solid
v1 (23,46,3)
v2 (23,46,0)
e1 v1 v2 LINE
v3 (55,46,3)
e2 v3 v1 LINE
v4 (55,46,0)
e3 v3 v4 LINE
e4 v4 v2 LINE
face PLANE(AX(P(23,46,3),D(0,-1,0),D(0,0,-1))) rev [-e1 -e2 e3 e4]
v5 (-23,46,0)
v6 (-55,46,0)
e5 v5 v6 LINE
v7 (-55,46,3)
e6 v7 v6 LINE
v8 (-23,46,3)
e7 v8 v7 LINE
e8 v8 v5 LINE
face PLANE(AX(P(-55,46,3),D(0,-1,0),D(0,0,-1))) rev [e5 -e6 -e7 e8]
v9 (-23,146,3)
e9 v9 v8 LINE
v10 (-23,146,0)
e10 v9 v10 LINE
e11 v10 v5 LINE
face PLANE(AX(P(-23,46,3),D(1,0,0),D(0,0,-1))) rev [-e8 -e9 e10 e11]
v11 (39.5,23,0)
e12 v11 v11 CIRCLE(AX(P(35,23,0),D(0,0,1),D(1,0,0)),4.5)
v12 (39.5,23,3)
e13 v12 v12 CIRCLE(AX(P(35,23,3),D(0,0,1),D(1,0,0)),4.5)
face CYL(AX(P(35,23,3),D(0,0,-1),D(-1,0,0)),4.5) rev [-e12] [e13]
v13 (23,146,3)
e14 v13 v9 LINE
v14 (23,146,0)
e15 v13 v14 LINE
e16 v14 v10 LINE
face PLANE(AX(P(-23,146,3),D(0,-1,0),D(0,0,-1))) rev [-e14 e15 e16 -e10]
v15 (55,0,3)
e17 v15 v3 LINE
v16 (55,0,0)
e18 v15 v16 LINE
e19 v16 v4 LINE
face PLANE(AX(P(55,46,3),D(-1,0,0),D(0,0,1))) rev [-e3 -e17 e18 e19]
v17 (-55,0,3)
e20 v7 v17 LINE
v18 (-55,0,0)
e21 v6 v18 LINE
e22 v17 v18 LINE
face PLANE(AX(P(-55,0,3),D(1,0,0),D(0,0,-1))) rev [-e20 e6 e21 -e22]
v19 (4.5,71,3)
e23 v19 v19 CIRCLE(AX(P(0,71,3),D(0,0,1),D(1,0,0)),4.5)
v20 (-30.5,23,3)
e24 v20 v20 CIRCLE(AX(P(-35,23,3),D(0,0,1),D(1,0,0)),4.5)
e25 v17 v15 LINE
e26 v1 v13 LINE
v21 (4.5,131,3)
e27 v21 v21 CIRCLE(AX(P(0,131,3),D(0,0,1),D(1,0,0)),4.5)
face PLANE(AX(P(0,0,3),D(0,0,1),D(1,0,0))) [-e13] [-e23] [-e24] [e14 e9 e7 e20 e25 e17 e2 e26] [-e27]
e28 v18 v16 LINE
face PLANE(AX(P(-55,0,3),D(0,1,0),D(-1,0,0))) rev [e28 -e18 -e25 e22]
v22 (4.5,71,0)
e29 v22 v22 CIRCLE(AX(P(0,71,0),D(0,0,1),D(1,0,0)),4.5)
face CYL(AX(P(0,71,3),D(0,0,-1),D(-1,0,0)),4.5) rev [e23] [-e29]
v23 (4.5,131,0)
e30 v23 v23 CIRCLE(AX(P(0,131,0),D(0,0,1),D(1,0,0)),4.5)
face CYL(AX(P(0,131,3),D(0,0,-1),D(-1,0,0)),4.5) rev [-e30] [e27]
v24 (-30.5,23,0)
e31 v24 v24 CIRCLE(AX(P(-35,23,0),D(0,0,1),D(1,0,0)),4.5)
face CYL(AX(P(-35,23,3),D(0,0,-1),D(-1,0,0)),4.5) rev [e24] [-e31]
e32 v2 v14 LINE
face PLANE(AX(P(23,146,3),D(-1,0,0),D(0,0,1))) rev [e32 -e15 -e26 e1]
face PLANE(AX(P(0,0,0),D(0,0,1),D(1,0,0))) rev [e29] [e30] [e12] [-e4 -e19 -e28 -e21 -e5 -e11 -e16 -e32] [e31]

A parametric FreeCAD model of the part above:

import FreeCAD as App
import Part
import Sketcher
from FreeCAD import Vector
Q = App.Units.Quantity


def add_polygon(sketch, points):
    """Adds a closed chain of lines whose ends are joined by coincident constraints."""
    first, n = sketch.GeometryCount, len(points)
    for a, b in zip(points, points[1:] + points[:1]):
        sketch.addGeometry(Part.LineSegment(App.Vector(*a, 0), App.Vector(*b, 0)), False)
    for i in range(n):
        sketch.addConstraint(Sketcher.Constraint("Coincident", first + i, 2, first + (i + 1) % n, 1))

doc = App.newDocument("Part")
params = doc.addObject("Spreadsheet::Sheet", "Params")
for row, (alias, value) in enumerate([
    ("sketch1_diameter", "9 mm"),
    ("sketch1_width", "110 mm"),
    ("sketch1_width2", "32 mm"),
    ("sketch1_height", "100 mm"),
    ("pad1_length", "3 mm"),
], start=1):
    params.set(f"A{row}", alias)
    params.set(f"B{row}", "=" + value)
    params.setAlias(f"B{row}", alias)

body = doc.addObject("PartDesign::Body", "Body")

# Sketch on XY plane
sketch1 = body.newObject("Sketcher::SketchObject", "Sketch")
sketch1.AttachmentSupport = (doc.getObject("XY_Plane"), [""])
sketch1.MapMode = "FlatFace"
add_polygon(sketch1, [(-55, 0), (55, 0), (55, 46), (23, 46), (23, 146), (-23, 146), (-23, 46), (-55, 46)])  # lines 0-7
sketch1.addGeometry(Part.Circle(Vector(-35, 23, 0), Vector(0, 0, 1), 4.5), False)  # 8
sketch1.addGeometry(Part.Circle(Vector(35, 23, 0), Vector(0, 0, 1), 4.5), False)  # 9
sketch1.addGeometry(Part.Circle(Vector(0, 71, 0), Vector(0, 0, 1), 4.5), False)  # 10
sketch1.addGeometry(Part.Circle(Vector(0, 131, 0), Vector(0, 0, 1), 4.5), False)  # 11
sketch1.addConstraint([
    Sketcher.Constraint("Horizontal", 0),
    Sketcher.Constraint("Vertical", 1),
    Sketcher.Constraint("Horizontal", 2),
    Sketcher.Constraint("Vertical", 3),
    Sketcher.Constraint("Horizontal", 4),
    Sketcher.Constraint("Vertical", 5),
    Sketcher.Constraint("Horizontal", 6),
    Sketcher.Constraint("Vertical", 7),
    Sketcher.Constraint("Equal", 8, 9),
    Sketcher.Constraint("Equal", 9, 10),
    Sketcher.Constraint("Equal", 10, 11),
    Sketcher.Constraint("Symmetric", 0, 2, 7, 2, -1, 1),
    Sketcher.Constraint("Symmetric", 8, 3, 9, 3, -2),
    Sketcher.Constraint("Symmetric", 2, 2, 5, 2, -2),
    Sketcher.Constraint("PointOnObject", 10, 3, -2),
    Sketcher.Constraint("PointOnObject", 11, 3, -2),
    Sketcher.Constraint("Equal", 4, 1),
    Sketcher.Constraint("Diameter", 8, Q("9 mm")),
    Sketcher.Constraint("DistanceX", 0, 1, 0, 2, Q("110 mm")),
    Sketcher.Constraint("DistanceX", 2, 2, 2, 1, Q("32 mm")),
    Sketcher.Constraint("DistanceY", 3, 1, 3, 2, Q("100 mm")),
    Sketcher.Constraint("DistanceX", 8, 3, -1, 1, Q("35 mm")),
    Sketcher.Constraint("DistanceY", -1, 1, 8, 3, Q("23 mm")),
    Sketcher.Constraint("DistanceY", -1, 1, 10, 3, Q("71 mm")),
    Sketcher.Constraint("DistanceY", -1, 1, 11, 3, Q("131 mm")),
])
sketch1.setExpression("Constraints[25]", "Params.sketch1_diameter")
sketch1.setExpression("Constraints[26]", "Params.sketch1_width")
sketch1.setExpression("Constraints[27]", "Params.sketch1_width2")
sketch1.setExpression("Constraints[28]", "Params.sketch1_height")
pad1 = body.newObject("PartDesign::Pad", "Pad")
pad1.Profile = sketch1
pad1.setExpression("Length", "Params.pad1_length")

doc.recompute()
